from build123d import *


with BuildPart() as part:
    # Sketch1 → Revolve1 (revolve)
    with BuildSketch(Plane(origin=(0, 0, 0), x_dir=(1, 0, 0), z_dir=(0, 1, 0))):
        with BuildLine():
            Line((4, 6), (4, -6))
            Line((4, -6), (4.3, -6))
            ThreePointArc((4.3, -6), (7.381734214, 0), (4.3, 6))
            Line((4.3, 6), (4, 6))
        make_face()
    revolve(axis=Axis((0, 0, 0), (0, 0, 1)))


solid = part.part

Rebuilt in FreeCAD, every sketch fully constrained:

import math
import FreeCAD as App
import Part
import Sketcher

doc = App.newDocument("Part")
body = doc.addObject("PartDesign::Body", "Body")

# Sketch on XZ plane
sketch1 = body.newObject("Sketcher::SketchObject", "Sketch")
sketch1.AttachmentSupport = (doc.getObject("XZ_Plane"), [""])
sketch1.MapMode = "FlatFace"
sketch1.addGeometry([
    Part.LineSegment(App.Vector(4, -6, 0), App.Vector(4, 6, 0)),
    Part.LineSegment(App.Vector(4, 6, 0), App.Vector(4.3, 6, 0)),
    Part.ArcOfCircle(Part.Circle(App.Vector(0, 0, 0), App.Vector(0, 0, 1), 7.38), math.radians(-54), math.radians(54)),
    Part.LineSegment(App.Vector(4.3, -6, 0), App.Vector(4, -6, 0)),
], False)
sketch1.addConstraint([
    Sketcher.Constraint("Coincident", 0, 2, 1, 1),
    Sketcher.Constraint("Coincident", 1, 2, 2, 2),
    Sketcher.Constraint("Coincident", 2, 1, 3, 1),
    Sketcher.Constraint("Coincident", 3, 2, 0, 1),
    Sketcher.Constraint("Vertical", 0),
    Sketcher.Constraint("Horizontal", 1),
    Sketcher.Constraint("Horizontal", 3),
    Sketcher.Constraint("Coincident", 2, 3, -1, 1),
    Sketcher.Constraint("Vertical", 1, 2, 2, 1),
    Sketcher.Constraint("DistanceY", 0, 1, 0, 2, 12.0),
    Sketcher.Constraint("DistanceX", 1, 1, 1, 2, 0.3),
    Sketcher.Constraint("DistanceX", -1, 1, 0, 2, 4.0),
])
revolution = body.newObject("PartDesign::Revolution", "Revolution")
revolution.Profile = sketch1
revolution.ReferenceAxis = (sketch1, ["V_Axis"])
revolution.Angle = 360

doc.recompute()
